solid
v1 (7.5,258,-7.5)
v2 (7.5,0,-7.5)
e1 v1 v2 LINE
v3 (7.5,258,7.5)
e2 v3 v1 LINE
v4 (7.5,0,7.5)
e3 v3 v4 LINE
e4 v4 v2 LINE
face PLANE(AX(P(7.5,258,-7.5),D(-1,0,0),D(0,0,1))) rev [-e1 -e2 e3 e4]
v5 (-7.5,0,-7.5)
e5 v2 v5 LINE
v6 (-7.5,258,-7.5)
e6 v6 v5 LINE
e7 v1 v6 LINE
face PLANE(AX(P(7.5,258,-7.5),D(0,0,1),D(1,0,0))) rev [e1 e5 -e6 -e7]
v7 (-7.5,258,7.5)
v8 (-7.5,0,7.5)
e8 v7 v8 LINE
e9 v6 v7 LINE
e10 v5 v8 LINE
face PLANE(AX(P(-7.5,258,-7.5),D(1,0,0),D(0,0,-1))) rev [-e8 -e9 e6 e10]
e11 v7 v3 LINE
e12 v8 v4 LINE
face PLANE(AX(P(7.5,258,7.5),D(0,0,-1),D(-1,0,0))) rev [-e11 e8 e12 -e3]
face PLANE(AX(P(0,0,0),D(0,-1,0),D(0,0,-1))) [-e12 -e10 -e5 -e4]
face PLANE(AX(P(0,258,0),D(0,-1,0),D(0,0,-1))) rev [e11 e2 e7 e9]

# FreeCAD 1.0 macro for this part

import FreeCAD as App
import Part
import Sketcher
from FreeCAD import Vector
Q = App.Units.Quantity

doc = App.newDocument("Part")
params = doc.addObject("Spreadsheet::Sheet", "Params")
for row, (alias, value) in enumerate([
    ("sketch1_width", "15 mm"),
    ("pad1_length", "258 mm"),
], start=1):
    params.set(f"A{row}", alias)
    params.set(f"B{row}", "=" + value)
    params.setAlias(f"B{row}", alias)

body = doc.addObject("PartDesign::Body", "Body")

sketch1 = body.newObject("Sketcher::SketchObject", "Sketch")
sketch1.AttachmentSupport = (doc.getObject("XZ_Plane"), [""])
sketch1.MapMode = "FlatFace"
sketch1.addGeometry([
    Part.LineSegment(Vector(-7.5, -7.5, 0), Vector(-7.5, 7.5, 0)),
    Part.LineSegment(Vector(-7.5, 7.5, 0), Vector(7.5, 7.5, 0)),
    Part.LineSegment(Vector(7.5, 7.5, 0), Vector(7.5, -7.5, 0)),
    Part.LineSegment(Vector(7.5, -7.5, 0), Vector(-7.5, -7.5, 0)),
], False)
sketch1.addConstraint([
    Sketcher.Constraint("Coincident", 0, 2, 1, 1),
    Sketcher.Constraint("Coincident", 1, 2, 2, 1),
    Sketcher.Constraint("Coincident", 2, 2, 3, 1),
    Sketcher.Constraint("Coincident", 3, 2, 0, 1),
    Sketcher.Constraint("Vertical", 0),
    Sketcher.Constraint("Horizontal", 1),
    Sketcher.Constraint("Vertical", 2),
    Sketcher.Constraint("Horizontal", 3),
    Sketcher.Constraint("Symmetric", 0, 2, 2, 2, -1, 1),
    Sketcher.Constraint("Equal", 3, 0),
    Sketcher.Constraint("DistanceX", 1, 1, 1, 2, Q("15 mm")),
])
sketch1.setExpression("Constraints[10]", "Params.sketch1_width")
pad1 = body.newObject("PartDesign::Pad", "Pad")
pad1.Profile = sketch1
pad1.setExpression("Length", "Params.pad1_length")
pad1.Reversed = True

doc.recompute()
